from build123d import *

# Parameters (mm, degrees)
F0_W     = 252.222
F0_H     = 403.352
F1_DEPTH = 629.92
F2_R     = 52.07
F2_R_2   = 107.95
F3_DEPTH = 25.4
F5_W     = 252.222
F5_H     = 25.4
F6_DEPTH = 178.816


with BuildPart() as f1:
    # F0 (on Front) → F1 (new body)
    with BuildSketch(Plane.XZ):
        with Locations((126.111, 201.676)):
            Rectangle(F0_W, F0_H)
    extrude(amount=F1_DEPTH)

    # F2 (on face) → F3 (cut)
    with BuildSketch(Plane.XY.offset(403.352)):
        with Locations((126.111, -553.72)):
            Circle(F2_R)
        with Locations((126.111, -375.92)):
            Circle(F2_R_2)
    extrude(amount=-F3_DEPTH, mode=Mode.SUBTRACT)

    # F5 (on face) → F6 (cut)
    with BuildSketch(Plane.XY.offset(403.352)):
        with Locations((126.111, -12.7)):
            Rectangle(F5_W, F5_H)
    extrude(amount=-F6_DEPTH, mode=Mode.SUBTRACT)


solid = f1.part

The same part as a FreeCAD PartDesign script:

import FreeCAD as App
import Part
import Sketcher
from FreeCAD import Vector
Q = App.Units.Quantity


def add_polygon(sketch, points):
    """Adds a closed chain of lines whose ends are joined by coincident constraints."""
    first, n = sketch.GeometryCount, len(points)
    for a, b in zip(points, points[1:] + points[:1]):
        sketch.addGeometry(Part.LineSegment(App.Vector(*a, 0), App.Vector(*b, 0)), False)
    for i in range(n):
        sketch.addConstraint(Sketcher.Constraint("Coincident", first + i, 2, first + (i + 1) % n, 1))

doc = App.newDocument("Part")
params = doc.addObject("Spreadsheet::Sheet", "Params")
for row, (alias, value) in enumerate([
    ("sketch1_width", "9.93 in"),
    ("sketch1_height", "15.88 in"),
    ("pad1_length", "24.8 in"),
    ("sketch2_diameter", "4.1 in"),
    ("sketch2_diameter2", "8.5 in"),
    ("pocket1_length", "1 in"),
    ("sketch3_height", "1 in"),
    ("sketch3_width", "9.93 in"),
    ("pocket2_length", "7.04 in"),
], start=1):
    params.set(f"A{row}", alias)
    params.set(f"B{row}", "=" + value)
    params.setAlias(f"B{row}", alias)

body = doc.addObject("PartDesign::Body", "Body")

sketch1 = doc.addObject("Sketcher::SketchObject", "Sketch")
body.addObject(sketch1)
sketch1.AttachmentSupport = (doc.XZ_Plane, [""])
sketch1.MapMode = "FlatFace"
add_polygon(sketch1, [(0, 403), (0, 0), (252, 0), (252, 403)])
sketch1.addConstraint(Sketcher.Constraint("Vertical", 0))
sketch1.addConstraint(Sketcher.Constraint("Horizontal", 1))
sketch1.addConstraint(Sketcher.Constraint("Vertical", 2))
sketch1.addConstraint(Sketcher.Constraint("Horizontal", 3))
sketch1.addConstraint(Sketcher.Constraint("Coincident", 0, 2, -1, 1))
sketch1.addConstraint(Sketcher.Constraint("DistanceX", 1, 1, 1, 2, Q("9.93 in")))
sketch1.addConstraint(Sketcher.Constraint("DistanceY", 0, 2, 0, 1, Q("15.88 in")))
sketch1.setExpression("Constraints[9]", "Params.sketch1_width")
sketch1.setExpression("Constraints[10]", "Params.sketch1_height")
pad1 = doc.addObject("PartDesign::Pad", "Pad")
body.addObject(pad1)
pad1.Profile = sketch1
pad1.setExpression("Length", "Params.pad1_length")

sketch2 = doc.addObject("Sketcher::SketchObject", "Sketch001")
body.addObject(sketch2)
sketch2.AttachmentSupport = (doc.XY_Plane, [""])
sketch2.MapMode = "FlatFace"
sketch2.AttachmentOffset = App.Placement(Vector(0, 0, 15.88 * 25.4), App.Rotation())
sketch2.addGeometry(Part.Circle(Vector(126, -554, 0), Vector(0, 0, 1), 52), False)
sketch2.addGeometry(Part.Circle(Vector(126, -376, 0), Vector(0, 0, 1), 108), False)
sketch2.addConstraint(Sketcher.Constraint("Vertical", 0, 3, 1, 3))
sketch2.addConstraint(Sketcher.Constraint("Diameter", 0, Q("4.1 in")))
sketch2.addConstraint(Sketcher.Constraint("Diameter", 1, Q("8.5 in")))
sketch2.addConstraint(Sketcher.Constraint("DistanceY", 0, 3, 1, 3, Q("7 in")))
sketch2.addConstraint(Sketcher.Constraint("DistanceY", 0, 3, -1, 1, Q("21.8 in")))
sketch2.addConstraint(Sketcher.Constraint("DistanceX", -1, 1, 0, 3, Q("4.965 in")))
sketch2.setExpression("Constraints[1]", "Params.sketch2_diameter")
sketch2.setExpression("Constraints[2]", "Params.sketch2_diameter2")
pocket1 = doc.addObject("PartDesign::Pocket", "Pocket")
body.addObject(pocket1)
pocket1.Profile = sketch2
pocket1.setExpression("Length", "Params.pocket1_length")

sketch3 = doc.addObject("Sketcher::SketchObject", "Sketch002")
body.addObject(sketch3)
sketch3.AttachmentSupport = (doc.XY_Plane, [""])
sketch3.MapMode = "FlatFace"
sketch3.AttachmentOffset = App.Placement(Vector(0, 0, 15.88 * 25.4), App.Rotation())
add_polygon(sketch3, [(0, 0), (0, -25), (252, -25), (252, 0)])
sketch3.addConstraint(Sketcher.Constraint("Vertical", 0))
sketch3.addConstraint(Sketcher.Constraint("Horizontal", 1))
sketch3.addConstraint(Sketcher.Constraint("Vertical", 2))
sketch3.addConstraint(Sketcher.Constraint("Horizontal", 3))
sketch3.addConstraint(Sketcher.Constraint("Coincident", 3, 2, -1, 1))
sketch3.addConstraint(Sketcher.Constraint("DistanceY", 0, 2, 0, 1, Q("1 in")))
sketch3.addConstraint(Sketcher.Constraint("DistanceX", 1, 1, 1, 2, Q("9.93 in")))
sketch3.setExpression("Constraints[9]", "Params.sketch3_height")
sketch3.setExpression("Constraints[10]", "Params.sketch3_width")
pocket2 = doc.addObject("PartDesign::Pocket", "Pocket001")
body.addObject(pocket2)
pocket2.Profile = sketch3
pocket2.setExpression("Length", "Params.pocket2_length")

doc.recompute()
